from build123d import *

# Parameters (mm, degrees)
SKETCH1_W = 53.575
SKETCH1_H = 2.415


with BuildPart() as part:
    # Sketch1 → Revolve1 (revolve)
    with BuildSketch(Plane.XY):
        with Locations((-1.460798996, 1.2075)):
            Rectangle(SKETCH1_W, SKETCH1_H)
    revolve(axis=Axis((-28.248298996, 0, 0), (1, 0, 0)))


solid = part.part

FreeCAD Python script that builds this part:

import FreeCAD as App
import Part
import Sketcher
Q = App.Units.Quantity

doc = App.newDocument("Part")
body = doc.addObject("PartDesign::Body", "Body")

# Sketch on XY plane
sketch1 = body.newObject("Sketcher::SketchObject", "Sketch")
sketch1.AttachmentSupport = (doc.getObject("XY_Plane"), [""])
sketch1.MapMode = "FlatFace"
sketch1.addGeometry([
    Part.LineSegment(App.Vector(-28.2, 2.4, 0), App.Vector(-28.2, 0, 0)),
    Part.LineSegment(App.Vector(-28.2, 0, 0), App.Vector(25.3, 0, 0)),
    Part.LineSegment(App.Vector(25.3, 0, 0), App.Vector(25.3, 2.4, 0)),
    Part.LineSegment(App.Vector(25.3, 2.4, 0), App.Vector(-28.2, 2.4, 0)),
], False)
sketch1.addConstraint([
    Sketcher.Constraint("Coincident", 0, 2, 1, 1),
    Sketcher.Constraint("Coincident", 1, 2, 2, 1),
    Sketcher.Constraint("Coincident", 2, 2, 3, 1),
    Sketcher.Constraint("Coincident", 3, 2, 0, 1),
    Sketcher.Constraint("Vertical", 0),
    Sketcher.Constraint("Horizontal", 1),
    Sketcher.Constraint("Vertical", 2),
    Sketcher.Constraint("Horizontal", 3),
    Sketcher.Constraint("PointOnObject", 0, 2, -1),
    Sketcher.Constraint("DistanceX", 1, 1, 1, 2, Q("53.575 mm")),
    Sketcher.Constraint("DistanceY", 0, 2, 0, 1, Q("2.415 mm")),
    Sketcher.Constraint("DistanceX", 0, 2, -1, 1, Q("28.248299 mm")),
])
revolution = body.newObject("PartDesign::Revolution", "Revolution")
revolution.Profile = sketch1
revolution.ReferenceAxis = (sketch1, ["H_Axis"])
revolution.Angle = 360

doc.recompute()
